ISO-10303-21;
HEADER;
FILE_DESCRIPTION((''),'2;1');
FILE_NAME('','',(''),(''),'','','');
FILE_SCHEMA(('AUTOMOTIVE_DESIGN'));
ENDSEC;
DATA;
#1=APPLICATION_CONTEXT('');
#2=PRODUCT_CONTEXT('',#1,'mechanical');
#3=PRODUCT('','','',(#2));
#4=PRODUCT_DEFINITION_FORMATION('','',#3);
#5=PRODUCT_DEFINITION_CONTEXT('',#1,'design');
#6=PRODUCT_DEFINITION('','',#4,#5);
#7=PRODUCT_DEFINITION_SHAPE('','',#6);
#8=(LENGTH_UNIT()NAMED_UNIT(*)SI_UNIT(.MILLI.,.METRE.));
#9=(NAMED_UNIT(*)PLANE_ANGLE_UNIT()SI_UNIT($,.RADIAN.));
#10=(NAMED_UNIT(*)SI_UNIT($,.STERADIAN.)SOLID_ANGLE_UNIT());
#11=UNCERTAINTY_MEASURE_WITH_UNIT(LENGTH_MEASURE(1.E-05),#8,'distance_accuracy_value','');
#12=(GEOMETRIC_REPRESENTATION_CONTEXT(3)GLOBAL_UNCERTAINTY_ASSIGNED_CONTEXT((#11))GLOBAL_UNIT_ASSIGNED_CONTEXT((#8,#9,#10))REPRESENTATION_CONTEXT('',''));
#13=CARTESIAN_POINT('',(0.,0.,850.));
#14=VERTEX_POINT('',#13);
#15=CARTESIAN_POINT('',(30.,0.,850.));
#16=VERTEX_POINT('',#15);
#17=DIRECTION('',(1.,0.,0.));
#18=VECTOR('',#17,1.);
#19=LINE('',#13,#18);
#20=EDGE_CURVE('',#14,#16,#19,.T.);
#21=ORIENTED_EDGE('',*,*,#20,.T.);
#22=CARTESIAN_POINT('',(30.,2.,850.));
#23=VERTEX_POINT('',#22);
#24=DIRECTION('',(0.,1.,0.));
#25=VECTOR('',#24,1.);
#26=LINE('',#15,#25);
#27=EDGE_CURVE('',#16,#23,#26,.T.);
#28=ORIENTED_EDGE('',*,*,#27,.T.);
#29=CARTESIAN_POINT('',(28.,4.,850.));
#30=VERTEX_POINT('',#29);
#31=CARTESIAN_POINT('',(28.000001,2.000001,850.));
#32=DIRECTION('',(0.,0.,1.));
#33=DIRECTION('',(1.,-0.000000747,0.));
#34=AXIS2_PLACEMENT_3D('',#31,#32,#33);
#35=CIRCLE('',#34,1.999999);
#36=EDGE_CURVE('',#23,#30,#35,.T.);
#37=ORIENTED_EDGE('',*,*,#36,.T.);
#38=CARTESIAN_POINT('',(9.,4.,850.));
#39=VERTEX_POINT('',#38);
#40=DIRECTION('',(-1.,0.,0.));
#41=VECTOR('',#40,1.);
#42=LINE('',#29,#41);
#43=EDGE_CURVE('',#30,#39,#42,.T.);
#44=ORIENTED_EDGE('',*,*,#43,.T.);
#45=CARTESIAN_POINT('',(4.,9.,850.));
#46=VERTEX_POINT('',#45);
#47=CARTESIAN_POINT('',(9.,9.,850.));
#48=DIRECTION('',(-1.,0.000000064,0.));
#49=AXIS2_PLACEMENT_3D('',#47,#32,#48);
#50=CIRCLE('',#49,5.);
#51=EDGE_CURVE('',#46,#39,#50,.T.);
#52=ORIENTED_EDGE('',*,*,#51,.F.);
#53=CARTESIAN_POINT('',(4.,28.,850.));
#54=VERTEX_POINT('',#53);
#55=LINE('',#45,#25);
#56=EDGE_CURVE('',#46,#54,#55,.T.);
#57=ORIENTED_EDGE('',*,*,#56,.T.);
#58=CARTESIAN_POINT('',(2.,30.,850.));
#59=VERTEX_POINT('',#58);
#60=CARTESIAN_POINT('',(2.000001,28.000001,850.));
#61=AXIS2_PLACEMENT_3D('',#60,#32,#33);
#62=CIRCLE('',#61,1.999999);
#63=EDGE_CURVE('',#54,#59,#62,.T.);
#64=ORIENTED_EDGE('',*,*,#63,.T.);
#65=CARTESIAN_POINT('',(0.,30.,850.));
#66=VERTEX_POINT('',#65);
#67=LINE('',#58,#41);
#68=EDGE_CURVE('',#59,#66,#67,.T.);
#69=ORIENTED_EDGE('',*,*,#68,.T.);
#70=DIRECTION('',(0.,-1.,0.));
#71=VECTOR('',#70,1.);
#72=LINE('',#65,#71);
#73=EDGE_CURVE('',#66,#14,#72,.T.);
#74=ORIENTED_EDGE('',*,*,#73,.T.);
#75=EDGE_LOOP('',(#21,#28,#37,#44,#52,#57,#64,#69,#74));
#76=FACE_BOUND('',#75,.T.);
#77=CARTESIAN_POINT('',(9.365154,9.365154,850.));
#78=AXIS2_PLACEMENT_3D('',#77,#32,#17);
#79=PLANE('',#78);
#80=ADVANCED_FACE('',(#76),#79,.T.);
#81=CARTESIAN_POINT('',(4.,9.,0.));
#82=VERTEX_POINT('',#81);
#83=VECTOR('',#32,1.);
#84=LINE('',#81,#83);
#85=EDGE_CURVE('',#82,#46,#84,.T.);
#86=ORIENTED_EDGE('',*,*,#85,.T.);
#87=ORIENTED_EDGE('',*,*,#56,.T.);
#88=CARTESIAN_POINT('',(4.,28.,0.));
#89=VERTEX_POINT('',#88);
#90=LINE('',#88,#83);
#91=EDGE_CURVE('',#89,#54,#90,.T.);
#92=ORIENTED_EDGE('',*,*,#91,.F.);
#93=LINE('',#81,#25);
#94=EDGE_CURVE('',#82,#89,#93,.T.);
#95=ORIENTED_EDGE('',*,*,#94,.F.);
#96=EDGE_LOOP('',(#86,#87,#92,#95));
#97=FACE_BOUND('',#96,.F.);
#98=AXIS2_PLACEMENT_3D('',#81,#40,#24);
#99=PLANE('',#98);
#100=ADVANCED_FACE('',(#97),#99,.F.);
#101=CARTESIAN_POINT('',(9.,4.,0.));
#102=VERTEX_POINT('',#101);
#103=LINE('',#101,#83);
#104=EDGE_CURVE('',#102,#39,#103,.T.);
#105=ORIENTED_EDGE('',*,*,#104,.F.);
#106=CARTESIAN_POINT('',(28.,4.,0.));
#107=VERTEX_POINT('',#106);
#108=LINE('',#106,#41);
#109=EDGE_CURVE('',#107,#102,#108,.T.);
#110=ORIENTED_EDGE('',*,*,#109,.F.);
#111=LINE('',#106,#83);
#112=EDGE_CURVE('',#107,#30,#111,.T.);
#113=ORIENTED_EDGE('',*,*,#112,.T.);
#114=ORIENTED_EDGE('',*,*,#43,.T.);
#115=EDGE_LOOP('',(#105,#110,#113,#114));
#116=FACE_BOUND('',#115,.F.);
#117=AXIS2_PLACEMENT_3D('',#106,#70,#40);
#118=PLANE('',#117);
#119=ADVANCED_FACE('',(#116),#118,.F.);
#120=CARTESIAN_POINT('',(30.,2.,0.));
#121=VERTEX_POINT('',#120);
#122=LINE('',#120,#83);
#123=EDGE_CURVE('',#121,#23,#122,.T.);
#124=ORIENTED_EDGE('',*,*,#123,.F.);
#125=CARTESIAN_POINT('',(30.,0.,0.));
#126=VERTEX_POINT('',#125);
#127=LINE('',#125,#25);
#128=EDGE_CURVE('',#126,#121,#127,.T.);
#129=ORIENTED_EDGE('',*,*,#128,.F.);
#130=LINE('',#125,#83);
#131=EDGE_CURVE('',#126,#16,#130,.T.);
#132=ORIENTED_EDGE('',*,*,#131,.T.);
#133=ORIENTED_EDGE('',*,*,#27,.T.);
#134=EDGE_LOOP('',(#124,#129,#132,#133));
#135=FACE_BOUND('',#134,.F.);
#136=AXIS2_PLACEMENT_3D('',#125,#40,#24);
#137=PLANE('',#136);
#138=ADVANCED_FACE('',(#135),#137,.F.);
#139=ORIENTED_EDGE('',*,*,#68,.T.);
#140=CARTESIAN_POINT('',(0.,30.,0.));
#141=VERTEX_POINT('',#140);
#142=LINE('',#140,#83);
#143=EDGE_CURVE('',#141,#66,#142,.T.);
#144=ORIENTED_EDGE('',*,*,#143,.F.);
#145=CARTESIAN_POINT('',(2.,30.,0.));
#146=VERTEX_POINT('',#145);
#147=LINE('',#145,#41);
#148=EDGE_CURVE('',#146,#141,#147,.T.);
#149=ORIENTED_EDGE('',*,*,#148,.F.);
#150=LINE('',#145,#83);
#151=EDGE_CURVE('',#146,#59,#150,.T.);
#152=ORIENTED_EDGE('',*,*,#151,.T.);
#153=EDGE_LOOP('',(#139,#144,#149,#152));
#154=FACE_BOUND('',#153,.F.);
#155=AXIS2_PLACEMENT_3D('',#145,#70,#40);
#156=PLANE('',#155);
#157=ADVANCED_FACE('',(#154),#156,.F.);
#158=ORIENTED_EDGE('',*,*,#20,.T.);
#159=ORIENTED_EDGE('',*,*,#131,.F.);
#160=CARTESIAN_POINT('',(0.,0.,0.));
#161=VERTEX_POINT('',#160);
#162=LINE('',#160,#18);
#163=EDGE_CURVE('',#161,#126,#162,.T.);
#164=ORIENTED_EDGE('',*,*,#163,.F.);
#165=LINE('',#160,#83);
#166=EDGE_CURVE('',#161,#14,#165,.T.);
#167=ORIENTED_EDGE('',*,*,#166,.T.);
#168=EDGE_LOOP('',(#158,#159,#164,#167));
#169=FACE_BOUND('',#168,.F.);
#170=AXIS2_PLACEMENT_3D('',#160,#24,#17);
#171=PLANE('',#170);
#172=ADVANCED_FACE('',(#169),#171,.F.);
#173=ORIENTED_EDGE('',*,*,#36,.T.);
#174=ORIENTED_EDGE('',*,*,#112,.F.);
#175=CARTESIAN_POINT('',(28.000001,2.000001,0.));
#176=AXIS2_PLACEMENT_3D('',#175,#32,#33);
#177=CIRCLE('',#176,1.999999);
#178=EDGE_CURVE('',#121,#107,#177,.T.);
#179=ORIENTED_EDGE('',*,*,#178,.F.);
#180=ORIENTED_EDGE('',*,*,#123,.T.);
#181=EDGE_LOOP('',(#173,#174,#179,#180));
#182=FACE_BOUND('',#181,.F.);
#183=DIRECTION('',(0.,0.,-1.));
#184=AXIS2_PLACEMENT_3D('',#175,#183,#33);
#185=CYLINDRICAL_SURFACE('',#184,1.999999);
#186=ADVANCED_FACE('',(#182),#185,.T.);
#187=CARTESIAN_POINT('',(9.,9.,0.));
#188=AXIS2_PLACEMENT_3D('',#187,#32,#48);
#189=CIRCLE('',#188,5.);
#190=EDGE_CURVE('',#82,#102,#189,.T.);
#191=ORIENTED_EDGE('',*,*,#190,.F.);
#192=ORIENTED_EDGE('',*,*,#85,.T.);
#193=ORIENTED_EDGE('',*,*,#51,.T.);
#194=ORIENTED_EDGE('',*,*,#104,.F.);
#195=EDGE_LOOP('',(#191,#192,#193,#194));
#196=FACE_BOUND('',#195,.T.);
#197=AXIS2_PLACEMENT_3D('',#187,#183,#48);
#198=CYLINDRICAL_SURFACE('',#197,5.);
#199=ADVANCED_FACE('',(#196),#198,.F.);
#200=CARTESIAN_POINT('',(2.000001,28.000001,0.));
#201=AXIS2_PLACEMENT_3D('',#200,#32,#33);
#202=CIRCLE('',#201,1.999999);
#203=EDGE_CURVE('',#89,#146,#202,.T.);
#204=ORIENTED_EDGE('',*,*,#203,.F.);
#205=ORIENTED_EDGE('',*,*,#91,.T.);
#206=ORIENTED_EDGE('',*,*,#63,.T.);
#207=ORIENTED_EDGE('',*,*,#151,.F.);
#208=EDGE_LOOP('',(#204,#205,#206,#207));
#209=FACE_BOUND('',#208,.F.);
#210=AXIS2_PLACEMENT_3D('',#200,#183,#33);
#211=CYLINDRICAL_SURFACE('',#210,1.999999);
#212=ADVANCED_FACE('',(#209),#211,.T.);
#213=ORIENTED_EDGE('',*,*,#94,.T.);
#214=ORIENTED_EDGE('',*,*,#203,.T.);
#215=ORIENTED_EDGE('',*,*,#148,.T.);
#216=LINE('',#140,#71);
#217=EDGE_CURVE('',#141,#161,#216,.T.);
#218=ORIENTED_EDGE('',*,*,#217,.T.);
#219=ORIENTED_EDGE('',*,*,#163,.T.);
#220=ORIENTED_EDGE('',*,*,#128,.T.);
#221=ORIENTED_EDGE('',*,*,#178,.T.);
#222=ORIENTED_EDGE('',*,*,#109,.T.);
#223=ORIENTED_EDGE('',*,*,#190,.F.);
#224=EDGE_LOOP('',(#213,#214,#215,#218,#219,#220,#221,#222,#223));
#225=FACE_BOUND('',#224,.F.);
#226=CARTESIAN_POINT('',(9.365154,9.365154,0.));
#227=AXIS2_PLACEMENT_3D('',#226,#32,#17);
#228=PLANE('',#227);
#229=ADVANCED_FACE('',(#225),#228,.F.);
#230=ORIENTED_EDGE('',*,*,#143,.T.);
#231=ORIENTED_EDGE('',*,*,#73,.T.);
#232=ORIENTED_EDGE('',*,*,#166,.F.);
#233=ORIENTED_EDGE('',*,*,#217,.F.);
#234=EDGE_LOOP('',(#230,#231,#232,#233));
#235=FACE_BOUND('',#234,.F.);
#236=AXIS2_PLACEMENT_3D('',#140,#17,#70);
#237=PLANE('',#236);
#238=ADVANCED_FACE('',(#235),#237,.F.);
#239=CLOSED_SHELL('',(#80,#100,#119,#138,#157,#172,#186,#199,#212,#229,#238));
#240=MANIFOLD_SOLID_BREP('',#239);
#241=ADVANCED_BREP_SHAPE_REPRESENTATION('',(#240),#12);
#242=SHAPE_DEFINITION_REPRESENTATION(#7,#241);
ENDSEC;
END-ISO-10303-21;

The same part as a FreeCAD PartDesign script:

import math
import FreeCAD as App
import Part
import Sketcher
Q = App.Units.Quantity

doc = App.newDocument("Part")
body = doc.addObject("PartDesign::Body", "Body")

# Sketch on XY plane
sketch1 = body.newObject("Sketcher::SketchObject", "Sketch")
sketch1.AttachmentSupport = (doc.getObject("XY_Plane"), [""])
sketch1.MapMode = "FlatFace"
sketch1.addGeometry(Part.LineSegment(App.Vector(0, 0, 0), App.Vector(30, 0, 0)), False)
sketch1.addGeometry(Part.LineSegment(App.Vector(30, 0, 0), App.Vector(30, 2, 0)), False)
sketch1.addGeometry(Part.ArcOfCircle(Part.Circle(App.Vector(28, 2, 0), App.Vector(0, 0, 1), 2), math.radians(0), math.radians(90)), False)
sketch1.addGeometry(Part.LineSegment(App.Vector(28, 4, 0), App.Vector(9, 4, 0)), False)
sketch1.addGeometry(Part.ArcOfCircle(Part.Circle(App.Vector(9, 9, 0), App.Vector(0, 0, 1), 5), math.radians(180), math.radians(270)), False)
sketch1.addGeometry(Part.LineSegment(App.Vector(4, 9, 0), App.Vector(4, 28, 0)), False)
sketch1.addGeometry(Part.ArcOfCircle(Part.Circle(App.Vector(2, 28, 0), App.Vector(0, 0, 1), 2), math.radians(0), math.radians(90)), False)
sketch1.addGeometry(Part.LineSegment(App.Vector(2, 30, 0), App.Vector(0, 30, 0)), False)
sketch1.addGeometry(Part.LineSegment(App.Vector(0, 30, 0), App.Vector(0, 0, 0)), False)
sketch1.addConstraint(Sketcher.Constraint("Coincident", 0, 2, 1, 1))
sketch1.addConstraint(Sketcher.Constraint("Tangent", 1, 2, 2, 1))
sketch1.addConstraint(Sketcher.Constraint("Tangent", 2, 2, 3, 1))
sketch1.addConstraint(Sketcher.Constraint("Tangent", 3, 2, 4, 2))
sketch1.addConstraint(Sketcher.Constraint("Tangent", 4, 1, 5, 1))
sketch1.addConstraint(Sketcher.Constraint("Tangent", 5, 2, 6, 1))
sketch1.addConstraint(Sketcher.Constraint("Tangent", 6, 2, 7, 1))
sketch1.addConstraint(Sketcher.Constraint("Coincident", 7, 2, 8, 1))
sketch1.addConstraint(Sketcher.Constraint("Coincident", 8, 2, 0, 1))
sketch1.addConstraint(Sketcher.Constraint("Horizontal", 0))
sketch1.addConstraint(Sketcher.Constraint("Vertical", 1))
sketch1.addConstraint(Sketcher.Constraint("Horizontal", 3))
sketch1.addConstraint(Sketcher.Constraint("Vertical", 5))
sketch1.addConstraint(Sketcher.Constraint("Horizontal", 7))
sketch1.addConstraint(Sketcher.Constraint("Vertical", 8))
sketch1.addConstraint(Sketcher.Constraint("Coincident", 8, 2, -1, 1))
sketch1.addConstraint(Sketcher.Constraint("Equal", 2, 6))
sketch1.addConstraint(Sketcher.Constraint("Equal", 7, 1))
sketch1.addConstraint(Sketcher.Constraint("Equal", 3, 5))
sketch1.addConstraint(Sketcher.Constraint("Radius", 2, Q("1.999999 mm")))
sketch1.addConstraint(Sketcher.Constraint("Radius", 4, Q("5 mm")))
sketch1.addConstraint(Sketcher.Constraint("DistanceX", 0, 1, 0, 2, Q("30 mm")))
sketch1.addConstraint(Sketcher.Constraint("DistanceX", 3, 2, 3, 1, Q("19 mm")))
pad1 = body.newObject("PartDesign::Pad", "Pad")
pad1.Profile = sketch1
pad1.Length = 850

doc.recompute()
